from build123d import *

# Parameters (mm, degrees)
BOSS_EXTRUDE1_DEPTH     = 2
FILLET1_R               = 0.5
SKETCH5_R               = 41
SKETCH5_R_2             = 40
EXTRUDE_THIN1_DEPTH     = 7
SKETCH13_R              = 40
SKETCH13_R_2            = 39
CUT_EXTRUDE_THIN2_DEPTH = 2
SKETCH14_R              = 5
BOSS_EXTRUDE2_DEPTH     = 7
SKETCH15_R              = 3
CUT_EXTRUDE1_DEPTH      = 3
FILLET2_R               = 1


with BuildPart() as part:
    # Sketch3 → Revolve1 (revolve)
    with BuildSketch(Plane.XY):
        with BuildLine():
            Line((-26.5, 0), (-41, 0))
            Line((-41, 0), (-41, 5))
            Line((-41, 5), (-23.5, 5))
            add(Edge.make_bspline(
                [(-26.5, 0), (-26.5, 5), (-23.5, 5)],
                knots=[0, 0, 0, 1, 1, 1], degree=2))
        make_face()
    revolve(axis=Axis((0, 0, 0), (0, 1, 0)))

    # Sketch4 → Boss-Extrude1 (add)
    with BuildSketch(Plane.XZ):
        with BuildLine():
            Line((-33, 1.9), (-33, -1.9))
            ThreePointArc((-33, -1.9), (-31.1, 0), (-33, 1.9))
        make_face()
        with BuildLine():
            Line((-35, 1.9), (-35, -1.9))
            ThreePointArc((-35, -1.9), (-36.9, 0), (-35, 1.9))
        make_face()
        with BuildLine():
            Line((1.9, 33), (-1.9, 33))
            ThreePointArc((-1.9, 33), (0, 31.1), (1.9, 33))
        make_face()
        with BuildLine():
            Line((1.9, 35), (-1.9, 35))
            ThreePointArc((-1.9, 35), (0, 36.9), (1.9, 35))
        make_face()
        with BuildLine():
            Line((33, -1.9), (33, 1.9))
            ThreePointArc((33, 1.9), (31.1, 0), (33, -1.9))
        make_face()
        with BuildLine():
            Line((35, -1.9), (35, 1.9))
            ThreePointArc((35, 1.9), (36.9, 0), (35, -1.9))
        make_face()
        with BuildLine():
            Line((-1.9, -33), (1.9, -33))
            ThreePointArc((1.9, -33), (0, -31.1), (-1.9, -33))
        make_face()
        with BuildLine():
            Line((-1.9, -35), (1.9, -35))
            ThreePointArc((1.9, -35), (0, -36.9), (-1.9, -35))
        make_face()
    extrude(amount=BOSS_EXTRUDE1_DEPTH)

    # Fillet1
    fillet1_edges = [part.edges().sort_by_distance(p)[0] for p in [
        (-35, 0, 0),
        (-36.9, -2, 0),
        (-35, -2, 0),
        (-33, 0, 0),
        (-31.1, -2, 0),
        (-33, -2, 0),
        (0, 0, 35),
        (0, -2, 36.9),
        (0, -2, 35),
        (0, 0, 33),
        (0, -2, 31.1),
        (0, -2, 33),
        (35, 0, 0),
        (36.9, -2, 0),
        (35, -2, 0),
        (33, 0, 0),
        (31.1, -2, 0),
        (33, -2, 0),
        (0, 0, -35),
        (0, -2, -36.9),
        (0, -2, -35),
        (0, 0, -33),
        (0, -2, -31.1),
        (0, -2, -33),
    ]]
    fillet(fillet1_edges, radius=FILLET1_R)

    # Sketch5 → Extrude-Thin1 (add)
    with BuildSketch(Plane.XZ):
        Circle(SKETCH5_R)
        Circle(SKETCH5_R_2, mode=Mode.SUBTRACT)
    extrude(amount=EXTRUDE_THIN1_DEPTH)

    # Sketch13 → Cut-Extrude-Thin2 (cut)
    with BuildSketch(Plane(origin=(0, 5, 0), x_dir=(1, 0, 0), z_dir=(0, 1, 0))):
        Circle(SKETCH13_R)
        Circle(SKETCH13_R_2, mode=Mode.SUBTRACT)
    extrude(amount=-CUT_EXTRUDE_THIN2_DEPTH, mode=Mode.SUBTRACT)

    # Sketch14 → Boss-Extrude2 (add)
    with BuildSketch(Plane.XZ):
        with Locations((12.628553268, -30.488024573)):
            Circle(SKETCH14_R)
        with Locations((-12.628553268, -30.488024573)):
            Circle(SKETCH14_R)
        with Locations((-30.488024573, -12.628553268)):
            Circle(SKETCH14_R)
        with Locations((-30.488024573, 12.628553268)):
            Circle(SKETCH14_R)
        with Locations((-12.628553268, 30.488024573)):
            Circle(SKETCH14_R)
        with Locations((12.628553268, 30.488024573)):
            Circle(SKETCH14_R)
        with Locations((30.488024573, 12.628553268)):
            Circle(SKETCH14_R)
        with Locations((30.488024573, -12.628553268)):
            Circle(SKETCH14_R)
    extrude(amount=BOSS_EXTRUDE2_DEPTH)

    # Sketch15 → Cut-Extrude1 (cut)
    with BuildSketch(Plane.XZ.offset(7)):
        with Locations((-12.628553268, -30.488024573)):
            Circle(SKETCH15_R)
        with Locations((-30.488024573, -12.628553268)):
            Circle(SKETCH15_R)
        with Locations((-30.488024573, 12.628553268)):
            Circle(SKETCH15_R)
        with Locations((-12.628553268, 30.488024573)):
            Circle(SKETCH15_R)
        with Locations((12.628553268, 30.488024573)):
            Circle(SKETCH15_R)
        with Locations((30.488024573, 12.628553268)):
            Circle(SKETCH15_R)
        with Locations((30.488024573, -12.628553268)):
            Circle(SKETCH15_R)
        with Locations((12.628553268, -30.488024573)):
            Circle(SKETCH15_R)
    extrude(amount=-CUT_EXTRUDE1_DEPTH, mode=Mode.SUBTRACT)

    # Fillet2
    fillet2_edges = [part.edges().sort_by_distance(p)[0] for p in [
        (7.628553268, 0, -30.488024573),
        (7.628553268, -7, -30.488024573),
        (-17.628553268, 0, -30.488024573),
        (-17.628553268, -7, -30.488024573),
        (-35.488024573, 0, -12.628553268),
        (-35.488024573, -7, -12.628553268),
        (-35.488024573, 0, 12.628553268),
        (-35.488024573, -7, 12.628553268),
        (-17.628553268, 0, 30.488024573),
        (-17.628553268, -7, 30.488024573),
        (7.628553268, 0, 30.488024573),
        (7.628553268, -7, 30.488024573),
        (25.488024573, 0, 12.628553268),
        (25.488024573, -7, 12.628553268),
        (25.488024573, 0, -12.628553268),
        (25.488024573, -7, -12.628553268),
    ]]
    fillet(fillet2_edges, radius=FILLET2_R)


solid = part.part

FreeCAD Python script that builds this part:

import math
import FreeCAD as App
import Part
import Sketcher
Q = App.Units.Quantity


def edges_at(feature, points):
    """Names of the edges that pass closest to the given points."""
    edges = feature.Shape.Edges
    near = lambda p: min(range(len(edges)), key=lambda i: edges[i].distToShape(Part.Vertex(*p))[0])
    return sorted({f"Edge{near(p) + 1}" for p in points})

doc = App.newDocument("Part")
body = doc.addObject("PartDesign::Body", "Body")

sketch1 = body.newObject("Sketcher::SketchObject", "Sketch")
sketch1.AttachmentSupport = (doc.getObject("XY_Plane"), [""])
sketch1.MapMode = "FlatFace"
sketch1.addGeometry(Part.LineSegment(App.Vector(-41, 0, 0), App.Vector(-26.5, 0, 0)), False)
sketch1.addGeometry(Part.BSplineCurve([App.Vector(-26.5, 0, 0), App.Vector(-26.5, 5, 0), App.Vector(-23.5, 5, 0)], [3, 3], [0, 1], False, 2, [1, 1, 1], False), False)
sketch1.addGeometry(Part.LineSegment(App.Vector(-23.5, 5, 0), App.Vector(-41, 5, 0)), False)
sketch1.addGeometry(Part.LineSegment(App.Vector(-41, 5, 0), App.Vector(-41, 0, 0)), False)
sketch1.addConstraint(Sketcher.Constraint("Block", 1))
sketch1.addConstraint(Sketcher.Constraint("Coincident", 0, 2, 1, 1))
sketch1.addConstraint(Sketcher.Constraint("Coincident", 1, 2, 2, 1))
sketch1.addConstraint(Sketcher.Constraint("Coincident", 2, 2, 3, 1))
sketch1.addConstraint(Sketcher.Constraint("Coincident", 3, 2, 0, 1))
sketch1.addConstraint(Sketcher.Constraint("Horizontal", 0))
sketch1.addConstraint(Sketcher.Constraint("Horizontal", 2))
sketch1.addConstraint(Sketcher.Constraint("Vertical", 3))
sketch1.addConstraint(Sketcher.Constraint("DistanceX", 0, 1, 0, 2, Q("14.5 mm")))
revolution = body.newObject("PartDesign::Revolution", "Revolution")
revolution.Profile = sketch1
revolution.ReferenceAxis = (sketch1, ["V_Axis"])
revolution.Angle = 360

sketch2 = body.newObject("Sketcher::SketchObject", "Sketch001")
sketch2.AttachmentSupport = (doc.getObject("XZ_Plane"), [""])
sketch2.MapMode = "FlatFace"
sketch2.addGeometry(Part.LineSegment(App.Vector(-33, 1.9, 0), App.Vector(-33, -1.9, 0)), False)
sketch2.addGeometry(Part.ArcOfCircle(Part.Circle(App.Vector(-33, 0, 0), App.Vector(0, 0, 1), 1.9), math.radians(-90), math.radians(90)), False)
sketch2.addGeometry(Part.LineSegment(App.Vector(-35, -1.9, 0), App.Vector(-35, 1.9, 0)), False)
sketch2.addGeometry(Part.ArcOfCircle(Part.Circle(App.Vector(-35, 0, 0), App.Vector(0, 0, 1), 1.9), math.radians(90), math.radians(270)), False)
sketch2.addGeometry(Part.LineSegment(App.Vector(1.9, 33, 0), App.Vector(-1.9, 33, 0)), False)
sketch2.addGeometry(Part.ArcOfCircle(Part.Circle(App.Vector(0, 33, 0), App.Vector(0, 0, 1), 1.9), math.radians(180), math.radians(360)), False)
sketch2.addGeometry(Part.LineSegment(App.Vector(-1.9, 35, 0), App.Vector(1.9, 35, 0)), False)
sketch2.addGeometry(Part.ArcOfCircle(Part.Circle(App.Vector(0, 35, 0), App.Vector(0, 0, 1), 1.9), math.radians(0), math.radians(180)), False)
sketch2.addGeometry(Part.LineSegment(App.Vector(33, -1.9, 0), App.Vector(33, 1.9, 0)), False)
sketch2.addGeometry(Part.ArcOfCircle(Part.Circle(App.Vector(33, 0, 0), App.Vector(0, 0, 1), 1.9), math.radians(90), math.radians(270)), False)
sketch2.addGeometry(Part.LineSegment(App.Vector(35, 1.9, 0), App.Vector(35, -1.9, 0)), False)
sketch2.addGeometry(Part.ArcOfCircle(Part.Circle(App.Vector(35, 0, 0), App.Vector(0, 0, 1), 1.9), math.radians(-90), math.radians(90)), False)
sketch2.addGeometry(Part.LineSegment(App.Vector(-1.9, -33, 0), App.Vector(1.9, -33, 0)), False)
sketch2.addGeometry(Part.ArcOfCircle(Part.Circle(App.Vector(0, -33, 0), App.Vector(0, 0, 1), 1.9), math.radians(0), math.radians(180)), False)
sketch2.addGeometry(Part.LineSegment(App.Vector(1.9, -35, 0), App.Vector(-1.9, -35, 0)), False)
sketch2.addGeometry(Part.ArcOfCircle(Part.Circle(App.Vector(0, -35, 0), App.Vector(0, 0, 1), 1.9), math.radians(180), math.radians(360)), False)
sketch2.addConstraint(Sketcher.Constraint("Coincident", 0, 1, 1, 2))
sketch2.addConstraint(Sketcher.Constraint("Coincident", 1, 1, 0, 2))
sketch2.addConstraint(Sketcher.Constraint("Coincident", 2, 1, 3, 2))
sketch2.addConstraint(Sketcher.Constraint("Coincident", 3, 1, 2, 2))
sketch2.addConstraint(Sketcher.Constraint("Coincident", 4, 1, 5, 2))
sketch2.addConstraint(Sketcher.Constraint("Coincident", 5, 1, 4, 2))
sketch2.addConstraint(Sketcher.Constraint("Coincident", 6, 1, 7, 2))
sketch2.addConstraint(Sketcher.Constraint("Coincident", 7, 1, 6, 2))
sketch2.addConstraint(Sketcher.Constraint("Coincident", 8, 1, 9, 2))
sketch2.addConstraint(Sketcher.Constraint("Coincident", 9, 1, 8, 2))
sketch2.addConstraint(Sketcher.Constraint("Coincident", 10, 1, 11, 2))
sketch2.addConstraint(Sketcher.Constraint("Coincident", 11, 1, 10, 2))
sketch2.addConstraint(Sketcher.Constraint("Coincident", 12, 1, 13, 2))
sketch2.addConstraint(Sketcher.Constraint("Coincident", 13, 1, 12, 2))
sketch2.addConstraint(Sketcher.Constraint("Coincident", 14, 1, 15, 2))
sketch2.addConstraint(Sketcher.Constraint("Coincident", 15, 1, 14, 2))
sketch2.addConstraint(Sketcher.Constraint("Vertical", 0))
sketch2.addConstraint(Sketcher.Constraint("Vertical", 2))
sketch2.addConstraint(Sketcher.Constraint("Horizontal", 4))
sketch2.addConstraint(Sketcher.Constraint("Horizontal", 6))
sketch2.addConstraint(Sketcher.Constraint("Vertical", 8))
sketch2.addConstraint(Sketcher.Constraint("Vertical", 10))
sketch2.addConstraint(Sketcher.Constraint("Horizontal", 12))
sketch2.addConstraint(Sketcher.Constraint("Horizontal", 14))
sketch2.addConstraint(Sketcher.Constraint("Equal", 1, 3))
sketch2.addConstraint(Sketcher.Constraint("Equal", 3, 5))
sketch2.addConstraint(Sketcher.Constraint("Equal", 5, 7))
sketch2.addConstraint(Sketcher.Constraint("Equal", 7, 9))
sketch2.addConstraint(Sketcher.Constraint("Equal", 9, 11))
sketch2.addConstraint(Sketcher.Constraint("Equal", 11, 13))
sketch2.addConstraint(Sketcher.Constraint("Equal", 13, 15))
sketch2.addConstraint(Sketcher.Constraint("Symmetric", 1, 3, 9, 3, -1, 1))
sketch2.addConstraint(Sketcher.Constraint("Symmetric", 3, 3, 11, 3, -1, 1))
sketch2.addConstraint(Sketcher.Constraint("Symmetric", 5, 3, 13, 3, -1, 1))
sketch2.addConstraint(Sketcher.Constraint("Symmetric", 7, 3, 15, 3, -1, 1))
sketch2.addConstraint(Sketcher.Constraint("Symmetric", 1, 1, 8, 1, -2))
sketch2.addConstraint(Sketcher.Constraint("Symmetric", 3, 1, 10, 1, -2))
sketch2.addConstraint(Sketcher.Constraint("Symmetric", 5, 1, 12, 1, -1))
sketch2.addConstraint(Sketcher.Constraint("Symmetric", 7, 1, 14, 1, -1))
sketch2.addConstraint(Sketcher.Constraint("Horizontal", 5, 3, 4, 1))
sketch2.addConstraint(Sketcher.Constraint("Horizontal", 7, 3, 6, 1))
sketch2.addConstraint(Sketcher.Constraint("Vertical", 1, 3, 0, 1))
sketch2.addConstraint(Sketcher.Constraint("Vertical", 3, 3, 2, 1))
sketch2.addConstraint(Sketcher.Constraint("Radius", 1, Q("1.9 mm")))
sketch2.addConstraint(Sketcher.Constraint("DistanceX", 1, 3, -1, 1, Q("33 mm")))
sketch2.addConstraint(Sketcher.Constraint("DistanceX", 3, 3, -1, 1, Q("35 mm")))
sketch2.addConstraint(Sketcher.Constraint("DistanceY", -1, 1, 5, 3, Q("33 mm")))
sketch2.addConstraint(Sketcher.Constraint("DistanceY", -1, 1, 7, 3, Q("35 mm")))
pad1 = body.newObject("PartDesign::Pad", "Pad")
pad1.Profile = sketch2
pad1.Length = 2
doc.recompute()

fillet = body.newObject("PartDesign::Fillet", "Fillet")
fillet.Base = (pad1, edges_at(pad1, [
    (-35, 0, 0),
    (-36.9, -2, 0),
    (-35, -2, 0),
    (-33, 0, 0),
    (-31.1, -2, 0),
    (-33, -2, 0),
    (0, 0, 35),
    (0, -2, 36.9),
    (0, -2, 35),
    (0, 0, 33),
    (0, -2, 31.1),
    (0, -2, 33),
    (35, 0, 0),
    (36.9, -2, 0),
    (35, -2, 0),
    (33, 0, 0),
    (31.1, -2, 0),
    (33, -2, 0),
    (0, 0, -35),
    (0, -2, -36.9),
    (0, -2, -35),
    (0, 0, -33),
    (0, -2, -31.1),
    (0, -2, -33),
]))
fillet.Radius = 0.5

sketch3 = body.newObject("Sketcher::SketchObject", "Sketch002")
sketch3.AttachmentSupport = (doc.getObject("XZ_Plane"), [""])
sketch3.MapMode = "FlatFace"
sketch3.addGeometry(Part.Circle(App.Vector(0, 0, 0), App.Vector(0, 0, 1), 41), False)
sketch3.addGeometry(Part.Circle(App.Vector(0, 0, 0), App.Vector(0, 0, 1), 40), False)
sketch3.addConstraint(Sketcher.Constraint("Coincident", 0, 3, -1, 1))
sketch3.addConstraint(Sketcher.Constraint("Coincident", 1, 3, -1, 1))
sketch3.addConstraint(Sketcher.Constraint("Diameter", 0, Q("82 mm")))
sketch3.addConstraint(Sketcher.Constraint("Diameter", 1, Q("80 mm")))
pad2 = body.newObject("PartDesign::Pad", "Pad001")
pad2.Profile = sketch3
pad2.Length = 7

sketch4 = body.newObject("Sketcher::SketchObject", "Sketch003")
sketch4.AttachmentSupport = (doc.getObject("XZ_Plane"), [""])
sketch4.MapMode = "FlatFace"
sketch4.AttachmentOffset = App.Placement(App.Vector(0, 0, -5), App.Rotation())
sketch4.addGeometry(Part.Circle(App.Vector(0, 0, 0), App.Vector(0, 0, 1), 40), False)
sketch4.addGeometry(Part.Circle(App.Vector(0, 0, 0), App.Vector(0, 0, 1), 39), False)
sketch4.addConstraint(Sketcher.Constraint("Coincident", 0, 3, -1, 1))
sketch4.addConstraint(Sketcher.Constraint("Coincident", 1, 3, -1, 1))
sketch4.addConstraint(Sketcher.Constraint("Diameter", 0, Q("80 mm")))
sketch4.addConstraint(Sketcher.Constraint("Diameter", 1, Q("78 mm")))
pocket1 = body.newObject("PartDesign::Pocket", "Pocket")
pocket1.Profile = sketch4
pocket1.Length = 2
pocket1.Reversed = True

sketch5 = body.newObject("Sketcher::SketchObject", "Sketch004")
sketch5.AttachmentSupport = (doc.getObject("XZ_Plane"), [""])
sketch5.MapMode = "FlatFace"
sketch5.addGeometry(Part.Circle(App.Vector(13, -30, 0), App.Vector(0, 0, 1), 5), False)
sketch5.addGeometry(Part.Circle(App.Vector(-13, -30, 0), App.Vector(0, 0, 1), 5), False)
sketch5.addGeometry(Part.Circle(App.Vector(-30, -13, 0), App.Vector(0, 0, 1), 5), False)
sketch5.addGeometry(Part.Circle(App.Vector(-30, 13, 0), App.Vector(0, 0, 1), 5), False)
sketch5.addGeometry(Part.Circle(App.Vector(-13, 30, 0), App.Vector(0, 0, 1), 5), False)
sketch5.addGeometry(Part.Circle(App.Vector(13, 30, 0), App.Vector(0, 0, 1), 5), False)
sketch5.addGeometry(Part.Circle(App.Vector(30, 13, 0), App.Vector(0, 0, 1), 5), False)
sketch5.addGeometry(Part.Circle(App.Vector(30, -13, 0), App.Vector(0, 0, 1), 5), False)
sketch5.addConstraint(Sketcher.Constraint("Equal", 0, 1))
sketch5.addConstraint(Sketcher.Constraint("Equal", 1, 2))
sketch5.addConstraint(Sketcher.Constraint("Equal", 2, 3))
sketch5.addConstraint(Sketcher.Constraint("Equal", 3, 4))
sketch5.addConstraint(Sketcher.Constraint("Equal", 4, 5))
sketch5.addConstraint(Sketcher.Constraint("Equal", 5, 6))
sketch5.addConstraint(Sketcher.Constraint("Equal", 6, 7))
sketch5.addConstraint(Sketcher.Constraint("Symmetric", 0, 3, 4, 3, -1, 1))
sketch5.addConstraint(Sketcher.Constraint("Symmetric", 1, 3, 5, 3, -1, 1))
sketch5.addConstraint(Sketcher.Constraint("Symmetric", 2, 3, 6, 3, -1, 1))
sketch5.addConstraint(Sketcher.Constraint("Symmetric", 3, 3, 7, 3, -1, 1))
sketch5.addConstraint(Sketcher.Constraint("Symmetric", 0, 3, 1, 3, -2))
sketch5.addConstraint(Sketcher.Constraint("Symmetric", 3, 3, 6, 3, -2))
sketch5.addConstraint(Sketcher.Constraint("Diameter", 0, Q("10 mm")))
sketch5.addConstraint(Sketcher.Constraint("DistanceX", 2, 3, 1, 3, Q("17.859471 mm")))
sketch5.addConstraint(Sketcher.Constraint("DistanceY", 1, 3, 2, 3, Q("17.859471 mm")))
sketch5.addConstraint(Sketcher.Constraint("DistanceY", 1, 3, 4, 3, Q("60.976049 mm")))
sketch5.addConstraint(Sketcher.Constraint("DistanceX", 3, 3, 6, 3, Q("60.976049 mm")))
pad3 = body.newObject("PartDesign::Pad", "Pad002")
pad3.Profile = sketch5
pad3.Length = 7

sketch6 = body.newObject("Sketcher::SketchObject", "Sketch005")
sketch6.AttachmentSupport = (doc.getObject("XZ_Plane"), [""])
sketch6.MapMode = "FlatFace"
sketch6.AttachmentOffset = App.Placement(App.Vector(0, 0, 7), App.Rotation())
sketch6.addGeometry(Part.Circle(App.Vector(-12.6, -30.5, 0), App.Vector(0, 0, 1), 3), False)
sketch6.addGeometry(Part.Circle(App.Vector(-30.5, -12.6, 0), App.Vector(0, 0, 1), 3), False)
sketch6.addGeometry(Part.Circle(App.Vector(-30.5, 12.6, 0), App.Vector(0, 0, 1), 3), False)
sketch6.addGeometry(Part.Circle(App.Vector(-12.6, 30.5, 0), App.Vector(0, 0, 1), 3), False)
sketch6.addGeometry(Part.Circle(App.Vector(12.6, 30.5, 0), App.Vector(0, 0, 1), 3), False)
sketch6.addGeometry(Part.Circle(App.Vector(30.5, 12.6, 0), App.Vector(0, 0, 1), 3), False)
sketch6.addGeometry(Part.Circle(App.Vector(30.5, -12.6, 0), App.Vector(0, 0, 1), 3), False)
sketch6.addGeometry(Part.Circle(App.Vector(12.6, -30.5, 0), App.Vector(0, 0, 1), 3), False)
sketch6.addConstraint(Sketcher.Constraint("Equal", 0, 1))
sketch6.addConstraint(Sketcher.Constraint("Equal", 1, 2))
sketch6.addConstraint(Sketcher.Constraint("Equal", 2, 3))
sketch6.addConstraint(Sketcher.Constraint("Equal", 3, 4))
sketch6.addConstraint(Sketcher.Constraint("Equal", 4, 5))
sketch6.addConstraint(Sketcher.Constraint("Equal", 5, 6))
sketch6.addConstraint(Sketcher.Constraint("Equal", 6, 7))
sketch6.addConstraint(Sketcher.Constraint("Symmetric", 0, 3, 4, 3, -1, 1))
sketch6.addConstraint(Sketcher.Constraint("Symmetric", 1, 3, 5, 3, -1, 1))
sketch6.addConstraint(Sketcher.Constraint("Symmetric", 2, 3, 6, 3, -1, 1))
sketch6.addConstraint(Sketcher.Constraint("Symmetric", 3, 3, 7, 3, -1, 1))
sketch6.addConstraint(Sketcher.Constraint("Symmetric", 3, 3, 4, 3, -2))
sketch6.addConstraint(Sketcher.Constraint("Symmetric", 2, 3, 5, 3, -2))
sketch6.addConstraint(Sketcher.Constraint("Diameter", 0, Q("6 mm")))
sketch6.addConstraint(Sketcher.Constraint("DistanceX", 1, 3, 0, 3, Q("17.859471 mm")))
sketch6.addConstraint(Sketcher.Constraint("DistanceY", 0, 3, 1, 3, Q("17.859471 mm")))
sketch6.addConstraint(Sketcher.Constraint("DistanceY", 0, 3, 3, 3, Q("60.976049 mm")))
sketch6.addConstraint(Sketcher.Constraint("DistanceX", 2, 3, 5, 3, Q("60.976049 mm")))
pocket2 = body.newObject("PartDesign::Pocket", "Pocket001")
pocket2.Profile = sketch6
pocket2.Length = 3
doc.recompute()

fillet2 = body.newObject("PartDesign::Fillet", "Fillet001")
fillet2.Base = (pocket2, edges_at(pocket2, [
    (7.629, 0, -30.488),
    (7.629, -7, -30.488),
    (-17.629, 0, -30.488),
    (-17.629, -7, -30.488),
    (-35.488, 0, -12.629),
    (-35.488, -7, -12.629),
    (-35.488, 0, 12.629),
    (-35.488, -7, 12.629),
    (-17.629, 0, 30.488),
    (-17.629, -7, 30.488),
    (7.629, 0, 30.488),
    (7.629, -7, 30.488),
    (25.488, 0, 12.629),
    (25.488, -7, 12.629),
    (25.488, 0, -12.629),
    (25.488, -7, -12.629),
]))
fillet2.Radius = 1

doc.recompute()
